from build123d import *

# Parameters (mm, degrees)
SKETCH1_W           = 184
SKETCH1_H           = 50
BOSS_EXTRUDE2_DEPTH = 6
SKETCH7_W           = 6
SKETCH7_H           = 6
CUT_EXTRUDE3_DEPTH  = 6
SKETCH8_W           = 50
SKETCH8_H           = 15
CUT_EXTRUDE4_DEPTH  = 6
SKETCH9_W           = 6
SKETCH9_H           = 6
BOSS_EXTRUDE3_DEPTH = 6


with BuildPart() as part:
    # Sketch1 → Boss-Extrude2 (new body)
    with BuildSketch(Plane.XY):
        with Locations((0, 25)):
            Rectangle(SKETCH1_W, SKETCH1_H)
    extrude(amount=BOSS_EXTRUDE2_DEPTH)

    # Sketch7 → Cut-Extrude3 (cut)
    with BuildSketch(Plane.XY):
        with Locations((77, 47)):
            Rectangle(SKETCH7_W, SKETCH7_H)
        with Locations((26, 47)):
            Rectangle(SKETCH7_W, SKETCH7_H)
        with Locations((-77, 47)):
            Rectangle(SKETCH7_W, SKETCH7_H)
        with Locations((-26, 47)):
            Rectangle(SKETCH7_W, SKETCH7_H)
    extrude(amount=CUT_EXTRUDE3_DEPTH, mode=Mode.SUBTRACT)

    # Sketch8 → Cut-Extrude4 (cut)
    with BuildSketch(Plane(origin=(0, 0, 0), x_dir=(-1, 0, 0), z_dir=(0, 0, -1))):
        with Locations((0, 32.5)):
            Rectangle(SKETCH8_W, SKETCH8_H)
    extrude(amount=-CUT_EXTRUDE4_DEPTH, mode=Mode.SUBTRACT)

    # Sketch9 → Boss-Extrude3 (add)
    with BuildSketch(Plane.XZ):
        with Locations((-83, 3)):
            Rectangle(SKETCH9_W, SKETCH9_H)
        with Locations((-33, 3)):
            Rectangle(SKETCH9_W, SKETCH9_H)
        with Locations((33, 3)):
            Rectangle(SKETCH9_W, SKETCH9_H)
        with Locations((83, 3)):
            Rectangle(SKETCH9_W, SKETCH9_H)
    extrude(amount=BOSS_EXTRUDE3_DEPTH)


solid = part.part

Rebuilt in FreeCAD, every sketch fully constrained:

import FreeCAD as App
import Part
import Sketcher
from FreeCAD import Vector
Q = App.Units.Quantity

doc = App.newDocument("Part")
body = doc.addObject("PartDesign::Body", "Body")

# Sketch on XY plane
sketch1 = doc.addObject("Sketcher::SketchObject", "Sketch")
body.addObject(sketch1)
sketch1.AttachmentSupport = (doc.XY_Plane, [""])
sketch1.MapMode = "FlatFace"
sketch1.addGeometry([
    Part.LineSegment(Vector(-92, 50, 0), Vector(-92, 0, 0)),
    Part.LineSegment(Vector(-92, 0, 0), Vector(92, 0, 0)),
    Part.LineSegment(Vector(92, 0, 0), Vector(92, 50, 0)),
    Part.LineSegment(Vector(92, 50, 0), Vector(-92, 50, 0)),
], False)
sketch1.addConstraint([
    Sketcher.Constraint("Coincident", 0, 2, 1, 1),
    Sketcher.Constraint("Coincident", 1, 2, 2, 1),
    Sketcher.Constraint("Coincident", 2, 2, 3, 1),
    Sketcher.Constraint("Coincident", 3, 2, 0, 1),
    Sketcher.Constraint("Vertical", 0),
    Sketcher.Constraint("Horizontal", 1),
    Sketcher.Constraint("Vertical", 2),
    Sketcher.Constraint("Horizontal", 3),
    Sketcher.Constraint("Symmetric", 0, 2, 1, 2, -1, 1),
    Sketcher.Constraint("DistanceX", 1, 1, 1, 2, Q("184 mm")),
    Sketcher.Constraint("DistanceY", 0, 2, 0, 1, Q("50 mm")),
])
pad1 = doc.addObject("PartDesign::Pad", "Pad")
body.addObject(pad1)
pad1.Profile = sketch1
pad1.Length = 6

# Sketch on XY plane
sketch2 = doc.addObject("Sketcher::SketchObject", "Sketch001")
body.addObject(sketch2)
sketch2.AttachmentSupport = (doc.XY_Plane, [""])
sketch2.MapMode = "FlatFace"
sketch2.addGeometry([
    Part.LineSegment(Vector(74, 50, 0), Vector(74, 44, 0)),  # 0
    Part.LineSegment(Vector(74, 44, 0), Vector(80, 44, 0)),  # 1
    Part.LineSegment(Vector(80, 44, 0), Vector(80, 50, 0)),  # 2
    Part.LineSegment(Vector(80, 50, 0), Vector(74, 50, 0)),  # 3
    Part.LineSegment(Vector(23, 50, 0), Vector(23, 44, 0)),  # 4
    Part.LineSegment(Vector(23, 44, 0), Vector(29, 44, 0)),  # 5
    Part.LineSegment(Vector(29, 44, 0), Vector(29, 50, 0)),  # 6
    Part.LineSegment(Vector(29, 50, 0), Vector(23, 50, 0)),  # 7
    Part.LineSegment(Vector(-80, 50, 0), Vector(-80, 44, 0)),  # 8
    Part.LineSegment(Vector(-80, 44, 0), Vector(-74, 44, 0)),  # 9
    Part.LineSegment(Vector(-74, 44, 0), Vector(-74, 50, 0)),  # 10
    Part.LineSegment(Vector(-74, 50, 0), Vector(-80, 50, 0)),  # 11
    Part.LineSegment(Vector(-29, 50, 0), Vector(-29, 44, 0)),  # 12
    Part.LineSegment(Vector(-29, 44, 0), Vector(-23, 44, 0)),  # 13
    Part.LineSegment(Vector(-23, 44, 0), Vector(-23, 50, 0)),  # 14
    Part.LineSegment(Vector(-23, 50, 0), Vector(-29, 50, 0)),  # 15
], False)
sketch2.addConstraint([
    Sketcher.Constraint("Coincident", 0, 2, 1, 1),
    Sketcher.Constraint("Coincident", 1, 2, 2, 1),
    Sketcher.Constraint("Coincident", 2, 2, 3, 1),
    Sketcher.Constraint("Coincident", 3, 2, 0, 1),
    Sketcher.Constraint("Coincident", 4, 2, 5, 1),
    Sketcher.Constraint("Coincident", 5, 2, 6, 1),
    Sketcher.Constraint("Coincident", 6, 2, 7, 1),
    Sketcher.Constraint("Coincident", 7, 2, 4, 1),
    Sketcher.Constraint("Coincident", 8, 2, 9, 1),
    Sketcher.Constraint("Coincident", 9, 2, 10, 1),
    Sketcher.Constraint("Coincident", 10, 2, 11, 1),
    Sketcher.Constraint("Coincident", 11, 2, 8, 1),
    Sketcher.Constraint("Coincident", 12, 2, 13, 1),
    Sketcher.Constraint("Coincident", 13, 2, 14, 1),
    Sketcher.Constraint("Coincident", 14, 2, 15, 1),
    Sketcher.Constraint("Coincident", 15, 2, 12, 1),
    Sketcher.Constraint("Vertical", 0),
    Sketcher.Constraint("Horizontal", 1),
    Sketcher.Constraint("Vertical", 2),
    Sketcher.Constraint("Horizontal", 3),
    Sketcher.Constraint("Vertical", 4),
    Sketcher.Constraint("Horizontal", 5),
    Sketcher.Constraint("Vertical", 6),
    Sketcher.Constraint("Horizontal", 7),
    Sketcher.Constraint("Vertical", 8),
    Sketcher.Constraint("Horizontal", 9),
    Sketcher.Constraint("Vertical", 10),
    Sketcher.Constraint("Horizontal", 11),
    Sketcher.Constraint("Vertical", 12),
    Sketcher.Constraint("Horizontal", 13),
    Sketcher.Constraint("Vertical", 14),
    Sketcher.Constraint("Horizontal", 15),
    Sketcher.Constraint("Symmetric", 1, 2, 8, 2, -2),
    Sketcher.Constraint("Symmetric", 3, 2, 10, 2, -2),
    Sketcher.Constraint("Symmetric", 5, 2, 12, 2, -2),
    Sketcher.Constraint("Symmetric", 7, 2, 14, 2, -2),
    Sketcher.Constraint("Horizontal", 1, 2, 4, 2),
    Sketcher.Constraint("Horizontal", 3, 2, 6, 2),
    Sketcher.Constraint("Equal", 3, 5),
    Sketcher.Constraint("Equal", 15, 0),
    Sketcher.Constraint("DistanceX", 1, 1, 1, 2, Q("6 mm")),
    Sketcher.Constraint("DistanceX", -1, 1, 0, 2, Q("74 mm")),
    Sketcher.Constraint("DistanceY", -1, 1, 0, 2, Q("44 mm")),
    Sketcher.Constraint("DistanceX", -1, 1, 4, 2, Q("23 mm")),
])
pocket1 = doc.addObject("PartDesign::Pocket", "Pocket")
body.addObject(pocket1)
pocket1.Profile = sketch2
pocket1.Length = 6
pocket1.Reversed = True

# Sketch on XY plane
sketch3 = doc.addObject("Sketcher::SketchObject", "Sketch002")
body.addObject(sketch3)
sketch3.AttachmentSupport = (doc.XY_Plane, [""])
sketch3.MapMode = "FlatFace"
sketch3.addGeometry([
    Part.LineSegment(Vector(25, 40, 0), Vector(25, 25, 0)),
    Part.LineSegment(Vector(25, 25, 0), Vector(-25, 25, 0)),
    Part.LineSegment(Vector(-25, 25, 0), Vector(-25, 40, 0)),
    Part.LineSegment(Vector(-25, 40, 0), Vector(25, 40, 0)),
], False)
sketch3.addConstraint([
    Sketcher.Constraint("Coincident", 0, 2, 1, 1),
    Sketcher.Constraint("Coincident", 1, 2, 2, 1),
    Sketcher.Constraint("Coincident", 2, 2, 3, 1),
    Sketcher.Constraint("Coincident", 3, 2, 0, 1),
    Sketcher.Constraint("Vertical", 0),
    Sketcher.Constraint("Horizontal", 1),
    Sketcher.Constraint("Vertical", 2),
    Sketcher.Constraint("Horizontal", 3),
    Sketcher.Constraint("DistanceX", 1, 2, 1, 1, Q("50 mm")),
    Sketcher.Constraint("DistanceY", 0, 2, 0, 1, Q("15 mm")),
    Sketcher.Constraint("DistanceX", -1, 1, 0, 2, Q("25 mm")),
    Sketcher.Constraint("DistanceY", -1, 1, 0, 2, Q("25 mm")),
])
pocket2 = doc.addObject("PartDesign::Pocket", "Pocket001")
body.addObject(pocket2)
pocket2.Profile = sketch3
pocket2.Length = 6
pocket2.Reversed = True

# Sketch on XZ plane
sketch4 = doc.addObject("Sketcher::SketchObject", "Sketch003")
body.addObject(sketch4)
sketch4.AttachmentSupport = (doc.XZ_Plane, [""])
sketch4.MapMode = "FlatFace"
sketch4.addGeometry([
    Part.LineSegment(Vector(-86, 6, 0), Vector(-86, 0, 0)),  # 0
    Part.LineSegment(Vector(-86, 0, 0), Vector(-80, 0, 0)),  # 1
    Part.LineSegment(Vector(-80, 0, 0), Vector(-80, 6, 0)),  # 2
    Part.LineSegment(Vector(-80, 6, 0), Vector(-86, 6, 0)),  # 3
    Part.LineSegment(Vector(-36, 6, 0), Vector(-36, 0, 0)),  # 4
    Part.LineSegment(Vector(-36, 0, 0), Vector(-30, 0, 0)),  # 5
    Part.LineSegment(Vector(-30, 0, 0), Vector(-30, 6, 0)),  # 6
    Part.LineSegment(Vector(-30, 6, 0), Vector(-36, 6, 0)),  # 7
    Part.LineSegment(Vector(30, 6, 0), Vector(30, 0, 0)),  # 8
    Part.LineSegment(Vector(30, 0, 0), Vector(36, 0, 0)),  # 9
    Part.LineSegment(Vector(36, 0, 0), Vector(36, 6, 0)),  # 10
    Part.LineSegment(Vector(36, 6, 0), Vector(30, 6, 0)),  # 11
    Part.LineSegment(Vector(80, 6, 0), Vector(80, 0, 0)),  # 12
    Part.LineSegment(Vector(80, 0, 0), Vector(86, 0, 0)),  # 13
    Part.LineSegment(Vector(86, 0, 0), Vector(86, 6, 0)),  # 14
    Part.LineSegment(Vector(86, 6, 0), Vector(80, 6, 0)),  # 15
], False)
sketch4.addConstraint([
    Sketcher.Constraint("Coincident", 0, 2, 1, 1),
    Sketcher.Constraint("Coincident", 1, 2, 2, 1),
    Sketcher.Constraint("Coincident", 2, 2, 3, 1),
    Sketcher.Constraint("Coincident", 3, 2, 0, 1),
    Sketcher.Constraint("Coincident", 4, 2, 5, 1),
    Sketcher.Constraint("Coincident", 5, 2, 6, 1),
    Sketcher.Constraint("Coincident", 6, 2, 7, 1),
    Sketcher.Constraint("Coincident", 7, 2, 4, 1),
    Sketcher.Constraint("Coincident", 8, 2, 9, 1),
    Sketcher.Constraint("Coincident", 9, 2, 10, 1),
    Sketcher.Constraint("Coincident", 10, 2, 11, 1),
    Sketcher.Constraint("Coincident", 11, 2, 8, 1),
    Sketcher.Constraint("Coincident", 12, 2, 13, 1),
    Sketcher.Constraint("Coincident", 13, 2, 14, 1),
    Sketcher.Constraint("Coincident", 14, 2, 15, 1),
    Sketcher.Constraint("Coincident", 15, 2, 12, 1),
    Sketcher.Constraint("Vertical", 0),
    Sketcher.Constraint("Horizontal", 1),
    Sketcher.Constraint("Vertical", 2),
    Sketcher.Constraint("Horizontal", 3),
    Sketcher.Constraint("Vertical", 4),
    Sketcher.Constraint("Horizontal", 5),
    Sketcher.Constraint("Vertical", 6),
    Sketcher.Constraint("Horizontal", 7),
    Sketcher.Constraint("Vertical", 8),
    Sketcher.Constraint("Horizontal", 9),
    Sketcher.Constraint("Vertical", 10),
    Sketcher.Constraint("Horizontal", 11),
    Sketcher.Constraint("Vertical", 12),
    Sketcher.Constraint("Horizontal", 13),
    Sketcher.Constraint("Vertical", 14),
    Sketcher.Constraint("Horizontal", 15),
    Sketcher.Constraint("Symmetric", 5, 2, 8, 2, -1, 1),
    Sketcher.Constraint("Symmetric", 1, 2, 12, 2, -1, 1),
    Sketcher.Constraint("Symmetric", 4, 2, 9, 2, -2),
    Sketcher.Constraint("Symmetric", 0, 2, 13, 2, -2),
    Sketcher.Constraint("Horizontal", 3, 2, 6, 2),
    Sketcher.Constraint("Horizontal", 7, 2, 10, 2),
    Sketcher.Constraint("Horizontal", 11, 2, 14, 2),
    Sketcher.Constraint("Equal", 3, 5),
    Sketcher.Constraint("Equal", 15, 0),
    Sketcher.Constraint("DistanceX", 1, 1, 1, 2, Q("6 mm")),
    Sketcher.Constraint("DistanceX", 0, 2, -1, 1, Q("86 mm")),
    Sketcher.Constraint("DistanceX", 4, 2, -1, 1, Q("36 mm")),
])
pad2 = doc.addObject("PartDesign::Pad", "Pad001")
body.addObject(pad2)
pad2.Profile = sketch4
pad2.Length = 6

doc.recompute()
